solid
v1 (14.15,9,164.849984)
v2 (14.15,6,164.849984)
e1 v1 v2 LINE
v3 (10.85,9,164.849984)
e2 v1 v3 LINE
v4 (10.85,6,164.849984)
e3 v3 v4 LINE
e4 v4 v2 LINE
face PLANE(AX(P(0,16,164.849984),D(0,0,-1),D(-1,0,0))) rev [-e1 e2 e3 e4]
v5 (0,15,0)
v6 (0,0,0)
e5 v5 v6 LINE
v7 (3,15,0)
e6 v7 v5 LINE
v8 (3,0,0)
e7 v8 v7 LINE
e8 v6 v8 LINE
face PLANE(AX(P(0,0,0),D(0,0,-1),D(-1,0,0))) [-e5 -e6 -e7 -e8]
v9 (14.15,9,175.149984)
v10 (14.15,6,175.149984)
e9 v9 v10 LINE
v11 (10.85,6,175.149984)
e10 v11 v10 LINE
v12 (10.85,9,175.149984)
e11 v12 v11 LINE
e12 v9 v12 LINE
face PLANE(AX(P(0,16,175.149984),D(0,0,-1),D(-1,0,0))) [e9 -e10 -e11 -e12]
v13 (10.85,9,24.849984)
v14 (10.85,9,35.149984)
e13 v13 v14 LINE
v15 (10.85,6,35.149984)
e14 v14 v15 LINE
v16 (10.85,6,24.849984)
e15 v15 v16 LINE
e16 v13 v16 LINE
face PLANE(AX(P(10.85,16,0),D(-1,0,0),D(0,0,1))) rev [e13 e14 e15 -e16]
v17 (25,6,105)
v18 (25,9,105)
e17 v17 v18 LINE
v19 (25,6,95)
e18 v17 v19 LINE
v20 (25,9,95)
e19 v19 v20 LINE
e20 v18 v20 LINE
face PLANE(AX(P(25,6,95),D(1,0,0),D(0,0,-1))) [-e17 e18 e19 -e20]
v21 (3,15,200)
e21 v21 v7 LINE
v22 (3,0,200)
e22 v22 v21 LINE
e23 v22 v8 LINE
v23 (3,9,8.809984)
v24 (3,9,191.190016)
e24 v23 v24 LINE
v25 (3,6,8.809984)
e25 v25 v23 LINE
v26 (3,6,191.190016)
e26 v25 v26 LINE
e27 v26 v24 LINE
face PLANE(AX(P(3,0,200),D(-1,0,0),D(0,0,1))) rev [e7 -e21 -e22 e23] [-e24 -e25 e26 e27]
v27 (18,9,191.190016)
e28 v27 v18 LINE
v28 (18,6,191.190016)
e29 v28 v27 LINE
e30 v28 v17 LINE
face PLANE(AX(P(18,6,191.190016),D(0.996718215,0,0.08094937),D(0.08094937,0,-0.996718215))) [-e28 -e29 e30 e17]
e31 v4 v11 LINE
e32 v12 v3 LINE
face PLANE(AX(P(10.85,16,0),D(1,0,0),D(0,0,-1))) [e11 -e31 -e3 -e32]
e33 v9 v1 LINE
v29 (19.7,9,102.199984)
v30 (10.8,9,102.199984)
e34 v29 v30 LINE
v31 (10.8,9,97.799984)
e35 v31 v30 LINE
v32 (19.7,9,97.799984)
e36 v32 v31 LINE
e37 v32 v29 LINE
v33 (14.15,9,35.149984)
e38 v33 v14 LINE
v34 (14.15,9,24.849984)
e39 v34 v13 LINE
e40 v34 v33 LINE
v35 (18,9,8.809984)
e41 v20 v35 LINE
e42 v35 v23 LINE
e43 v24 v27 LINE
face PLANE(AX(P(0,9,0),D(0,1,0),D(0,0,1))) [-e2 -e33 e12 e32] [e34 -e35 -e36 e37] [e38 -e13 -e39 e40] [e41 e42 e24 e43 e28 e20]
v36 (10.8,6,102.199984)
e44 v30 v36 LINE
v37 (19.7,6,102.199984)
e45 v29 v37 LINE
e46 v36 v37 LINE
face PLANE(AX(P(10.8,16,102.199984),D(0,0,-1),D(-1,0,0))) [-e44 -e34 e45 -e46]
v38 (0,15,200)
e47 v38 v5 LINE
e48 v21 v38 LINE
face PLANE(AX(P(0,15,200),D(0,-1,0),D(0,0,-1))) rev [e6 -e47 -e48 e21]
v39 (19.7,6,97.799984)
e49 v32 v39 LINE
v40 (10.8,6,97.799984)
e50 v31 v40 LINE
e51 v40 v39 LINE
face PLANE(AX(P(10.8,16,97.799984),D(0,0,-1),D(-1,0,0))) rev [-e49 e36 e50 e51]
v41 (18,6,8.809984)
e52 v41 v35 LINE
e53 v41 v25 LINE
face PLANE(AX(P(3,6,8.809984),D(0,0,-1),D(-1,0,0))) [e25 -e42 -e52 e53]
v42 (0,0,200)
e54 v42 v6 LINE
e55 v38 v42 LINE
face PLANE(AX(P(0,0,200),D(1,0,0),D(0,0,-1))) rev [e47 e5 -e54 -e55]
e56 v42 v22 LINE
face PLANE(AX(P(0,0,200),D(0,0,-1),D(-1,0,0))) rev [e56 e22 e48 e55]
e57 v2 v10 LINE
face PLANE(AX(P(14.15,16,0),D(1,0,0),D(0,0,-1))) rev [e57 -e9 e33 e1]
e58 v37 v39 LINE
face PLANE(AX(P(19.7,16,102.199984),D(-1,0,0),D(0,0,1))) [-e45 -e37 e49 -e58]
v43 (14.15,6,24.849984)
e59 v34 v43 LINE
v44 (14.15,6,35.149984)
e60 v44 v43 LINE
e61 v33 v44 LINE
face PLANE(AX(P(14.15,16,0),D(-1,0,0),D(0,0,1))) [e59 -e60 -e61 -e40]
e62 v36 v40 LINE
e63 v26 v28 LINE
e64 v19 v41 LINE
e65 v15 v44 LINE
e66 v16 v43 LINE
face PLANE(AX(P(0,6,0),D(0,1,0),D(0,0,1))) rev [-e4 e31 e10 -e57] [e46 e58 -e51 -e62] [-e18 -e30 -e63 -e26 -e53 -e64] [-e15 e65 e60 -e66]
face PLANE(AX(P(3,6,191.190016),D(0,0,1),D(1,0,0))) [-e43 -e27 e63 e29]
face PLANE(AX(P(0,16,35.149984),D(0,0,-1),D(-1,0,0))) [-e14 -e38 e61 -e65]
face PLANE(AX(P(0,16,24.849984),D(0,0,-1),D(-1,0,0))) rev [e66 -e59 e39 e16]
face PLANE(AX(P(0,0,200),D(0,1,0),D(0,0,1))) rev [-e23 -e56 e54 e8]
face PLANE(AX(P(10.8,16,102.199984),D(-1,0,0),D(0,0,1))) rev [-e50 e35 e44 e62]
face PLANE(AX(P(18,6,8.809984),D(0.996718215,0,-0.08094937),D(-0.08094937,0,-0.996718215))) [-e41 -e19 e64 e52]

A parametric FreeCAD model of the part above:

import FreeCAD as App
import Part
import Sketcher

V = App.Vector

doc = App.newDocument("Part")
body = doc.addObject("PartDesign::Body", "Body")

sketch1 = body.newObject("Sketcher::SketchObject", "Sketch")
sketch1.AttachmentSupport = (doc.getObject("XY_Plane"), [""])
sketch1.MapMode = "FlatFace"
sketch1.addGeometry(Part.LineSegment(V(0, 15, 0), V(0, 0, 0)), False)
sketch1.addGeometry(Part.LineSegment(V(0, 0, 0), V(3, 0, 0)), False)
sketch1.addGeometry(Part.LineSegment(V(3, 0, 0), V(3, 15, 0)), False)
sketch1.addGeometry(Part.LineSegment(V(3, 15, 0), V(0, 15, 0)), False)
sketch1.addConstraint(Sketcher.Constraint("Coincident", 0, 2, 1, 1))
sketch1.addConstraint(Sketcher.Constraint("Coincident", 1, 2, 2, 1))
sketch1.addConstraint(Sketcher.Constraint("Coincident", 2, 2, 3, 1))
sketch1.addConstraint(Sketcher.Constraint("Coincident", 3, 2, 0, 1))
sketch1.addConstraint(Sketcher.Constraint("Vertical", 0))
sketch1.addConstraint(Sketcher.Constraint("Horizontal", 1))
sketch1.addConstraint(Sketcher.Constraint("Vertical", 2))
sketch1.addConstraint(Sketcher.Constraint("Horizontal", 3))
sketch1.addConstraint(Sketcher.Constraint("Coincident", 0, 2, -1, 1))
sketch1.addConstraint(Sketcher.Constraint("DistanceX", 1, 1, 1, 2, 3.0))
sketch1.addConstraint(Sketcher.Constraint("DistanceY", 0, 2, 0, 1, 15.0))
pad1 = body.newObject("PartDesign::Pad", "Pad")
pad1.Profile = sketch1
pad1.Length = 200

sketch2 = body.newObject("Sketcher::SketchObject", "Sketch001")
sketch2.AttachmentSupport = (doc.getObject("XZ_Plane"), [""])
sketch2.MapMode = "FlatFace"
sketch2.AttachmentOffset = App.Placement(V(0, 0, -9), App.Rotation())
sketch2.addGeometry(Part.LineSegment(V(18, 191, 0), V(25, 105, 0)), False)
sketch2.addGeometry(Part.LineSegment(V(25, 105, 0), V(25, 95, 0)), False)
sketch2.addGeometry(Part.LineSegment(V(25, 95, 0), V(18, 9, 0)), False)
sketch2.addGeometry(Part.LineSegment(V(18, 9, 0), V(3, 9, 0)), False)
sketch2.addGeometry(Part.LineSegment(V(3, 9, 0), V(3, 191, 0)), False)
sketch2.addGeometry(Part.LineSegment(V(3, 191, 0), V(18, 191, 0)), False)
sketch2.addConstraint(Sketcher.Constraint("Coincident", 0, 2, 1, 1))
sketch2.addConstraint(Sketcher.Constraint("Coincident", 1, 2, 2, 1))
sketch2.addConstraint(Sketcher.Constraint("Coincident", 2, 2, 3, 1))
sketch2.addConstraint(Sketcher.Constraint("Coincident", 3, 2, 4, 1))
sketch2.addConstraint(Sketcher.Constraint("Coincident", 4, 2, 5, 1))
sketch2.addConstraint(Sketcher.Constraint("Coincident", 5, 2, 0, 1))
sketch2.addConstraint(Sketcher.Constraint("Vertical", 1))
sketch2.addConstraint(Sketcher.Constraint("Horizontal", 3))
sketch2.addConstraint(Sketcher.Constraint("Vertical", 4))
sketch2.addConstraint(Sketcher.Constraint("Horizontal", 5))
sketch2.addConstraint(Sketcher.Constraint("Vertical", 2, 2, 5, 2))
sketch2.addConstraint(Sketcher.Constraint("Equal", 0, 2))
sketch2.addConstraint(Sketcher.Constraint("DistanceX", 3, 2, 3, 1, 15.0))
sketch2.addConstraint(Sketcher.Constraint("DistanceY", 1, 2, 1, 1, 10.0))
sketch2.addConstraint(Sketcher.Constraint("DistanceX", -1, 1, 0, 2, 25.0))
sketch2.addConstraint(Sketcher.Constraint("DistanceY", -1, 1, 0, 2, 105.0))
sketch2.addConstraint(Sketcher.Constraint("DistanceX", -1, 1, 2, 2, 18.0))
sketch2.addConstraint(Sketcher.Constraint("DistanceY", 4, 1, 4, 2, 182.380032))
pad2 = body.newObject("PartDesign::Pad", "Pad001")
pad2.Profile = sketch2
pad2.Length = 3

sketch3 = body.newObject("Sketcher::SketchObject", "Sketch002")
sketch3.AttachmentSupport = (doc.getObject("XZ_Plane"), [""])
sketch3.MapMode = "FlatFace"
sketch3.AttachmentOffset = App.Placement(V(0, 0, -6), App.Rotation())
sketch3.addGeometry(Part.LineSegment(V(10.8, 35.1, 0), V(10.8, 24.8, 0)), False)
sketch3.addGeometry(Part.LineSegment(V(10.8, 24.8, 0), V(14.2, 24.8, 0)), False)
sketch3.addGeometry(Part.LineSegment(V(14.2, 24.8, 0), V(14.2, 35.1, 0)), False)
sketch3.addGeometry(Part.LineSegment(V(14.2, 35.1, 0), V(10.8, 35.1, 0)), False)
sketch3.addGeometry(Part.LineSegment(V(10.8, 175.1, 0), V(10.8, 164.8, 0)), False)
sketch3.addGeometry(Part.LineSegment(V(10.8, 164.8, 0), V(14.2, 164.8, 0)), False)
sketch3.addGeometry(Part.LineSegment(V(14.2, 164.8, 0), V(14.2, 175.1, 0)), False)
sketch3.addGeometry(Part.LineSegment(V(14.2, 175.1, 0), V(10.8, 175.1, 0)), False)
sketch3.addGeometry(Part.LineSegment(V(10.8, 102.2, 0), V(10.8, 97.8, 0)), False)
sketch3.addGeometry(Part.LineSegment(V(10.8, 97.8, 0), V(19.7, 97.8, 0)), False)
sketch3.addGeometry(Part.LineSegment(V(19.7, 97.8, 0), V(19.7, 102.2, 0)), False)
sketch3.addGeometry(Part.LineSegment(V(19.7, 102.2, 0), V(10.8, 102.2, 0)), False)
sketch3.addConstraint(Sketcher.Constraint("Coincident", 0, 2, 1, 1))
sketch3.addConstraint(Sketcher.Constraint("Coincident", 1, 2, 2, 1))
sketch3.addConstraint(Sketcher.Constraint("Coincident", 2, 2, 3, 1))
sketch3.addConstraint(Sketcher.Constraint("Coincident", 3, 2, 0, 1))
sketch3.addConstraint(Sketcher.Constraint("Coincident", 4, 2, 5, 1))
sketch3.addConstraint(Sketcher.Constraint("Coincident", 5, 2, 6, 1))
sketch3.addConstraint(Sketcher.Constraint("Coincident", 6, 2, 7, 1))
sketch3.addConstraint(Sketcher.Constraint("Coincident", 7, 2, 4, 1))
sketch3.addConstraint(Sketcher.Constraint("Coincident", 8, 2, 9, 1))
sketch3.addConstraint(Sketcher.Constraint("Coincident", 9, 2, 10, 1))
sketch3.addConstraint(Sketcher.Constraint("Coincident", 10, 2, 11, 1))
sketch3.addConstraint(Sketcher.Constraint("Coincident", 11, 2, 8, 1))
sketch3.addConstraint(Sketcher.Constraint("Vertical", 0))
sketch3.addConstraint(Sketcher.Constraint("Horizontal", 1))
sketch3.addConstraint(Sketcher.Constraint("Vertical", 2))
sketch3.addConstraint(Sketcher.Constraint("Horizontal", 3))
sketch3.addConstraint(Sketcher.Constraint("Vertical", 4))
sketch3.addConstraint(Sketcher.Constraint("Horizontal", 5))
sketch3.addConstraint(Sketcher.Constraint("Vertical", 6))
sketch3.addConstraint(Sketcher.Constraint("Horizontal", 7))
sketch3.addConstraint(Sketcher.Constraint("Vertical", 8))
sketch3.addConstraint(Sketcher.Constraint("Horizontal", 9))
sketch3.addConstraint(Sketcher.Constraint("Vertical", 10))
sketch3.addConstraint(Sketcher.Constraint("Horizontal", 11))
sketch3.addConstraint(Sketcher.Constraint("Vertical", 3, 2, 4, 2))
sketch3.addConstraint(Sketcher.Constraint("Vertical", 2, 2, 5, 2))
sketch3.addConstraint(Sketcher.Constraint("Equal", 2, 4))
sketch3.addConstraint(Sketcher.Constraint("DistanceX", 1, 1, 1, 2, 3.3))
sketch3.addConstraint(Sketcher.Constraint("DistanceX", 9, 1, 9, 2, 8.9))
sketch3.addConstraint(Sketcher.Constraint("DistanceY", 0, 2, 0, 1, 10.3))
sketch3.addConstraint(Sketcher.Constraint("DistanceY", 8, 2, 8, 1, 4.4))
sketch3.addConstraint(Sketcher.Constraint("DistanceY", 0, 2, 4, 2, 140.0))
sketch3.addConstraint(Sketcher.Constraint("DistanceX", -1, 1, 8, 2, 10.8))
sketch3.addConstraint(Sketcher.Constraint("DistanceX", -1, 1, 0, 2, 10.85))
sketch3.addConstraint(Sketcher.Constraint("DistanceY", 3, 2, 8, 2, 62.65))
sketch3.addConstraint(Sketcher.Constraint("DistanceY", -1, 1, 0, 2, 24.849984))
pocket1 = body.newObject("PartDesign::Pocket", "Pocket")
pocket1.Profile = sketch3
pocket1.Length = 10

doc.recompute()
